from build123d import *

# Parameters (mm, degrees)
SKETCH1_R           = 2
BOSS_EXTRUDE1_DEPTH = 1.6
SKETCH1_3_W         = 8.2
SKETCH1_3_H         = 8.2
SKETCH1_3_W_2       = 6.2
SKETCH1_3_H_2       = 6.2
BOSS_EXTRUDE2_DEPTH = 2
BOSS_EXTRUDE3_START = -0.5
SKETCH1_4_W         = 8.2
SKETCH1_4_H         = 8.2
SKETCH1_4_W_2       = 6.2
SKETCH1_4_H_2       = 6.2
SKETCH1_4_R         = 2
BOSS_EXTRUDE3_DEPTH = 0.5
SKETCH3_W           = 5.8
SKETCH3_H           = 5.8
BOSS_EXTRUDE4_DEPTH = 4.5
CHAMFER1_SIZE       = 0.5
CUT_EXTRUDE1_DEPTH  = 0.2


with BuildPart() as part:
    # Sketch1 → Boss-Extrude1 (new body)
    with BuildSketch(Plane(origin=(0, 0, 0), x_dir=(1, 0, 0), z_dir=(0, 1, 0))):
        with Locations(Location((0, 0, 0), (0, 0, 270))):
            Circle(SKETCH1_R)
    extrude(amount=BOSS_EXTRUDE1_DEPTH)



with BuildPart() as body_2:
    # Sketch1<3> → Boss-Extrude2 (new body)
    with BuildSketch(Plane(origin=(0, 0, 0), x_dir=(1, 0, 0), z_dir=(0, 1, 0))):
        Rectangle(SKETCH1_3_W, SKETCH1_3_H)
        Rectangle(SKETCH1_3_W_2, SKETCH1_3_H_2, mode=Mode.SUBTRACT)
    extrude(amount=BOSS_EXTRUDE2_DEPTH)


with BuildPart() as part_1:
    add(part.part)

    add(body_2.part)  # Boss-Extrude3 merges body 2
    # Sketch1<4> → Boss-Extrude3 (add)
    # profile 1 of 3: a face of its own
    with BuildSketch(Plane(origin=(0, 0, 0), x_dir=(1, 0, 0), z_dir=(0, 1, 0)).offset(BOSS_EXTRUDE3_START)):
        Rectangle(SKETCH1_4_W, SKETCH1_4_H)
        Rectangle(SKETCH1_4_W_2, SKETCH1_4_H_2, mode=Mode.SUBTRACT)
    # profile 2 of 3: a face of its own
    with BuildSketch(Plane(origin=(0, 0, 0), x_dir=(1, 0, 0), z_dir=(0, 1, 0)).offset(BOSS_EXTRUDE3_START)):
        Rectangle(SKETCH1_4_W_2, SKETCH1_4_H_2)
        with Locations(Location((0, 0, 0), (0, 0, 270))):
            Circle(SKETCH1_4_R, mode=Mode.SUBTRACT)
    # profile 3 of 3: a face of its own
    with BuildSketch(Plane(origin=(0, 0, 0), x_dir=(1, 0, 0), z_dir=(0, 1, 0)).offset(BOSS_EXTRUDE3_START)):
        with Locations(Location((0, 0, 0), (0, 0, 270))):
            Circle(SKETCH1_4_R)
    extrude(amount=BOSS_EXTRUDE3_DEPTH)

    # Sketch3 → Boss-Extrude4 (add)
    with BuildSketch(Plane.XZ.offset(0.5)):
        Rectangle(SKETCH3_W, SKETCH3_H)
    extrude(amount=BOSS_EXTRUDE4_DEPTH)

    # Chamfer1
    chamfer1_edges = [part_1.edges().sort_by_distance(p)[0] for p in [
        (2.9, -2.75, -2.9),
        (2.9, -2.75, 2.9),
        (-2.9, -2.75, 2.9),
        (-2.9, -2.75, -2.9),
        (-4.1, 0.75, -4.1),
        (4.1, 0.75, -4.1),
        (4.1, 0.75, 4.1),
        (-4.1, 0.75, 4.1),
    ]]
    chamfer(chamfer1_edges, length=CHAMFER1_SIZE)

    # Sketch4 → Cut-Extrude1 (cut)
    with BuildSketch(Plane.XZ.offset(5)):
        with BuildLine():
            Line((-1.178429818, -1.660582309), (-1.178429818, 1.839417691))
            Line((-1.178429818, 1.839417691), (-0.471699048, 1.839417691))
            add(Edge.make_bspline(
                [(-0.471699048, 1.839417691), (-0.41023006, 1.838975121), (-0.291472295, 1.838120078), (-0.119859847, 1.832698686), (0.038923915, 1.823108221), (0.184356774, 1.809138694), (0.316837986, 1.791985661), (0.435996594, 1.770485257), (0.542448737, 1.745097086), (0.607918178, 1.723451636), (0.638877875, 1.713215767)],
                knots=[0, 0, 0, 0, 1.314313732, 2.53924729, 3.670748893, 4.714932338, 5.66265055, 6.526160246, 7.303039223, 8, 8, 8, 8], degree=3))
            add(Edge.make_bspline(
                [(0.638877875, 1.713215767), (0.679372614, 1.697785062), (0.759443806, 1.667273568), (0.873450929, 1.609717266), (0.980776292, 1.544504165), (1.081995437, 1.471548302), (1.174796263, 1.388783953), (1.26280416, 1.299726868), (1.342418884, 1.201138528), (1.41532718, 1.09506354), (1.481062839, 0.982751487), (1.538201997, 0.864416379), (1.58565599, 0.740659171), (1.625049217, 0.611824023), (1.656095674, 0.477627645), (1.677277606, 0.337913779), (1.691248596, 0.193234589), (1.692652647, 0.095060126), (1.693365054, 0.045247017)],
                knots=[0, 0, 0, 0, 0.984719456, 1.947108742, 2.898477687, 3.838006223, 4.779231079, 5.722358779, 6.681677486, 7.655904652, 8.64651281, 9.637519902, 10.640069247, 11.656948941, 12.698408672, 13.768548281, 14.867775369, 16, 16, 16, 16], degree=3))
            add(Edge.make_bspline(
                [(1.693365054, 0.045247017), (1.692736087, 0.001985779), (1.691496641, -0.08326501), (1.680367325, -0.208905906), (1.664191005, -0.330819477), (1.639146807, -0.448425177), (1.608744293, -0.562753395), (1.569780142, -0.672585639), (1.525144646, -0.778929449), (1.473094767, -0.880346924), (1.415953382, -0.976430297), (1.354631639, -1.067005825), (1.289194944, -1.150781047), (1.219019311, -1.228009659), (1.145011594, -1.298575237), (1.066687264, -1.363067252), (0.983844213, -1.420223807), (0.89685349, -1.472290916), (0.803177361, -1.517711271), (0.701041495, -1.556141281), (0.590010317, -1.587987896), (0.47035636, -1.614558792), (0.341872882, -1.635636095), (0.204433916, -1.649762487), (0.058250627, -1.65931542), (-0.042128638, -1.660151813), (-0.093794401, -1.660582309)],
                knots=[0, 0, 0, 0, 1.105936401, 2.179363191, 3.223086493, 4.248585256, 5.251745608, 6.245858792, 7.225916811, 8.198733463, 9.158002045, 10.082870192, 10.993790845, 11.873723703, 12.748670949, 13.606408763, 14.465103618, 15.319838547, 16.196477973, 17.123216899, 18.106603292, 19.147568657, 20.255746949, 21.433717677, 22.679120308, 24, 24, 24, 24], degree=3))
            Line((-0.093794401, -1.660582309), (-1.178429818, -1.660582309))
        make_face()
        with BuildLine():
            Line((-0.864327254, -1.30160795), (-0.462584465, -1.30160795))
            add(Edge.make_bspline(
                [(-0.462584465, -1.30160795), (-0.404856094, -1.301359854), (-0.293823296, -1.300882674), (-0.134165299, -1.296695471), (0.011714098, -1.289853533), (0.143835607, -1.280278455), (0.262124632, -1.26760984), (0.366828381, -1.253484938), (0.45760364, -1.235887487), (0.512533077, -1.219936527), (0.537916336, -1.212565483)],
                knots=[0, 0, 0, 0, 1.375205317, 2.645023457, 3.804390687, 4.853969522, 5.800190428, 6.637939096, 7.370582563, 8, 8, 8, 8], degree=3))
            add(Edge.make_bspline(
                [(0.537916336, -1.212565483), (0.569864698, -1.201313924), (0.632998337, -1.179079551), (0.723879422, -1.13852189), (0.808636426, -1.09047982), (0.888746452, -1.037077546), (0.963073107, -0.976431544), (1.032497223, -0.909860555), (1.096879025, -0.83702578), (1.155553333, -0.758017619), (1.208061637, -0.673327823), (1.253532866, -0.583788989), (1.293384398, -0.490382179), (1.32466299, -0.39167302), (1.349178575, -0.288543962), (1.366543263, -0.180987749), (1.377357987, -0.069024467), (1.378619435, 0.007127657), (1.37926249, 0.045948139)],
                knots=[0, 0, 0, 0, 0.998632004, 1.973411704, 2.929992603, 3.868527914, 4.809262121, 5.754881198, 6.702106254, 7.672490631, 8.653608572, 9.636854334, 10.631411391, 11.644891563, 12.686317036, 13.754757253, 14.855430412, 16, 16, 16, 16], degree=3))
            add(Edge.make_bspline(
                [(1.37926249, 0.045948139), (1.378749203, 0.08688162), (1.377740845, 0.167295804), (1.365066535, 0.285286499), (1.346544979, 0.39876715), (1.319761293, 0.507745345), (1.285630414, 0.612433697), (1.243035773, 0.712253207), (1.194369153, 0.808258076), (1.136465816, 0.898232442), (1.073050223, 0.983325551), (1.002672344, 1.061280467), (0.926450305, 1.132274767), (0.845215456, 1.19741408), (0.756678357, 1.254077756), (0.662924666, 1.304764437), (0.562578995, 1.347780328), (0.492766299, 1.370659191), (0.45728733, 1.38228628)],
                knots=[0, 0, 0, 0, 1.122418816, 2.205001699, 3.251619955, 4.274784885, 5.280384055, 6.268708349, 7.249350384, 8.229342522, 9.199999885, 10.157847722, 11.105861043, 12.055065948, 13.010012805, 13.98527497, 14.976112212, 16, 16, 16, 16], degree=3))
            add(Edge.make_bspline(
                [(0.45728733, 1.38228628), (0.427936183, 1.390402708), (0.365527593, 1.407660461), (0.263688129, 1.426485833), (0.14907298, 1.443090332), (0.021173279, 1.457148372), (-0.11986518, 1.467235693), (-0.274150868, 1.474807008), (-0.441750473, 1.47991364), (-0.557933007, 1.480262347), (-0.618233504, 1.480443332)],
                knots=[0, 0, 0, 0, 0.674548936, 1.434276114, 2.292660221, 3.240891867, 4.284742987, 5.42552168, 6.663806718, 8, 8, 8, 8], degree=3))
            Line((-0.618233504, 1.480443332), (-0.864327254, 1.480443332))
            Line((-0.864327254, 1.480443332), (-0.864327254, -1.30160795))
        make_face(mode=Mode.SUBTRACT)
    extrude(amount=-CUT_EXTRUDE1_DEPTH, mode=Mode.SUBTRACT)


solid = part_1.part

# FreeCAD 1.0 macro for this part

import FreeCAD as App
import Part
import Sketcher
Q = App.Units.Quantity


def edges_at(feature, points):
    """Names of the edges that pass closest to the given points."""
    edges = feature.Shape.Edges
    near = lambda p: min(range(len(edges)), key=lambda i: edges[i].distToShape(Part.Vertex(*p))[0])
    return sorted({f"Edge{near(p) + 1}" for p in points})


def add_polygon(sketch, points):
    """Adds a closed chain of lines whose ends are joined by coincident constraints."""
    first, n = sketch.GeometryCount, len(points)
    for a, b in zip(points, points[1:] + points[:1]):
        sketch.addGeometry(Part.LineSegment(App.Vector(*a, 0), App.Vector(*b, 0)), False)
    for i in range(n):
        sketch.addConstraint(Sketcher.Constraint("Coincident", first + i, 2, first + (i + 1) % n, 1))

doc = App.newDocument("Part")
params = doc.addObject("Spreadsheet::Sheet", "Params")
for row, (alias, value) in enumerate([
    ("sketch1_diameter", "4 mm"),
    ("pad1_length", "1.6 mm"),
    ("sketch2_width", "8.2 mm"),
    ("sketch2_width2", "6.2 mm"),
    ("pad2_length", "2 mm"),
    ("sketch3_width", "8.2 mm"),
    ("pad3_length", "0.5 mm"),
    ("sketch4_width", "5.8 mm"),
    ("pad4_length", "4.5 mm"),
    ("chamfer_size", "0.5 mm"),
    ("pocket1_length", "0.2 mm"),
], start=1):
    params.set(f"A{row}", alias)
    params.set(f"B{row}", "=" + value)
    params.setAlias(f"B{row}", alias)

body = doc.addObject("PartDesign::Body", "Body")

# Sketch on XZ plane
sketch1 = body.newObject("Sketcher::SketchObject", "Sketch")
sketch1.AttachmentSupport = (doc.getObject("XZ_Plane"), [""])
sketch1.MapMode = "FlatFace"
sketch1.addGeometry(Part.Circle(App.Vector(0, 0, 0), App.Vector(0, 0, 1), 2), False)
sketch1.addConstraint(Sketcher.Constraint("Coincident", 0, 3, -1, 1))
sketch1.addConstraint(Sketcher.Constraint("Diameter", 0, Q("4 mm")))
sketch1.setExpression("Constraints[1]", "Params.sketch1_diameter")
pad1 = body.newObject("PartDesign::Pad", "Pad")
pad1.Profile = sketch1
pad1.setExpression("Length", "Params.pad1_length")
pad1.Reversed = True
body2 = doc.addObject("PartDesign::Body", "Body001")

# Sketch on XZ plane
sketch2 = body2.newObject("Sketcher::SketchObject", "Sketch001")
sketch2.AttachmentSupport = (doc.getObject("XZ_Plane001"), [""])
sketch2.MapMode = "FlatFace"
add_polygon(sketch2, [(-4, -4), (-4, 4), (4, 4), (4, -4)])  # lines 0-3
add_polygon(sketch2, [(3, 3), (-3, 3), (-3, -3), (3, -3)])  # lines 4-7
sketch2.addConstraint(Sketcher.Constraint("Vertical", 0))
sketch2.addConstraint(Sketcher.Constraint("Horizontal", 1))
sketch2.addConstraint(Sketcher.Constraint("Vertical", 2))
sketch2.addConstraint(Sketcher.Constraint("Horizontal", 3))
sketch2.addConstraint(Sketcher.Constraint("Horizontal", 4))
sketch2.addConstraint(Sketcher.Constraint("Vertical", 5))
sketch2.addConstraint(Sketcher.Constraint("Horizontal", 6))
sketch2.addConstraint(Sketcher.Constraint("Vertical", 7))
sketch2.addConstraint(Sketcher.Constraint("Symmetric", 0, 2, 2, 2, -1, 1))
sketch2.addConstraint(Sketcher.Constraint("Symmetric", 4, 2, 6, 2, -1, 1))
sketch2.addConstraint(Sketcher.Constraint("Equal", 3, 0))
sketch2.addConstraint(Sketcher.Constraint("Equal", 6, 5))
sketch2.addConstraint(Sketcher.Constraint("DistanceX", 1, 1, 1, 2, Q("8.2 mm")))
sketch2.addConstraint(Sketcher.Constraint("DistanceX", 4, 2, 4, 1, Q("6.2 mm")))
sketch2.setExpression("Constraints[20]", "Params.sketch2_width")
sketch2.setExpression("Constraints[21]", "Params.sketch2_width2")
pad2 = body2.newObject("PartDesign::Pad", "Pad001")
pad2.Profile = sketch2
pad2.setExpression("Length", "Params.pad2_length")
pad2.Reversed = True
body.AllowCompound = True
doc.recompute()

boolean = body.newObject("PartDesign::Boolean", "Boolean")
boolean.Type = "Fuse"
boolean.addObjects([body2])

# Sketch on XZ plane
sketch3 = body.newObject("Sketcher::SketchObject", "Sketch002")
sketch3.AttachmentSupport = (doc.getObject("XZ_Plane"), [""])
sketch3.MapMode = "FlatFace"
sketch3.AttachmentOffset = App.Placement(App.Vector(0, 0, 0.5), App.Rotation())
add_polygon(sketch3, [(-4, -4), (-4, 4), (4, 4), (4, -4)])  # lines 0-3
sketch3.addConstraint(Sketcher.Constraint("Vertical", 0))
sketch3.addConstraint(Sketcher.Constraint("Horizontal", 1))
sketch3.addConstraint(Sketcher.Constraint("Vertical", 2))
sketch3.addConstraint(Sketcher.Constraint("Horizontal", 3))
sketch3.addConstraint(Sketcher.Constraint("Symmetric", 0, 2, 2, 2, -1, 1))
sketch3.addConstraint(Sketcher.Constraint("Equal", 3, 0))
sketch3.addConstraint(Sketcher.Constraint("DistanceX", 1, 1, 1, 2, Q("8.2 mm")))
sketch3.setExpression("Constraints[10]", "Params.sketch3_width")
pad3 = body.newObject("PartDesign::Pad", "Pad002")
pad3.Profile = sketch3
pad3.setExpression("Length", "Params.pad3_length")
pad3.Reversed = True

# Sketch on XZ plane
sketch4 = body.newObject("Sketcher::SketchObject", "Sketch003")
sketch4.AttachmentSupport = (doc.getObject("XZ_Plane"), [""])
sketch4.MapMode = "FlatFace"
sketch4.AttachmentOffset = App.Placement(App.Vector(0, 0, 0.5), App.Rotation())
add_polygon(sketch4, [(-3, 3), (-3, -3), (3, -3), (3, 3)])  # lines 0-3
sketch4.addConstraint(Sketcher.Constraint("Vertical", 0))
sketch4.addConstraint(Sketcher.Constraint("Horizontal", 1))
sketch4.addConstraint(Sketcher.Constraint("Vertical", 2))
sketch4.addConstraint(Sketcher.Constraint("Horizontal", 3))
sketch4.addConstraint(Sketcher.Constraint("Symmetric", 0, 2, 2, 2, -1, 1))
sketch4.addConstraint(Sketcher.Constraint("Equal", 3, 0))
sketch4.addConstraint(Sketcher.Constraint("DistanceX", 1, 1, 1, 2, Q("5.8 mm")))
sketch4.setExpression("Constraints[10]", "Params.sketch4_width")
pad4 = body.newObject("PartDesign::Pad", "Pad003")
pad4.Profile = sketch4
pad4.setExpression("Length", "Params.pad4_length")
doc.recompute()

chamfer = body.newObject("PartDesign::Chamfer", "Chamfer")
chamfer.Base = (pad4, edges_at(pad4, [
    (2.9, -2.75, -2.9),
    (2.9, -2.75, 2.9),
    (-2.9, -2.75, 2.9),
    (-2.9, -2.75, -2.9),
    (-4.1, 0.75, -4.1),
    (4.1, 0.75, -4.1),
    (4.1, 0.75, 4.1),
    (-4.1, 0.75, 4.1),
]))
chamfer.setExpression("Size", "Params.chamfer_size")

# Sketch on XZ plane
sketch5 = body.newObject("Sketcher::SketchObject", "Sketch004")
sketch5.AttachmentSupport = (doc.getObject("XZ_Plane"), [""])
sketch5.MapMode = "FlatFace"
sketch5.AttachmentOffset = App.Placement(App.Vector(0, 0, 5), App.Rotation())
sketch5.addGeometry(Part.LineSegment(App.Vector(-1.17843, 1.839418, 0), App.Vector(-1.17843, -1.660582, 0)), False)
sketch5.addGeometry(Part.LineSegment(App.Vector(-1.17843, -1.660582, 0), App.Vector(-0.093794, -1.660582, 0)), False)
sketch5.addGeometry(Part.BSplineCurve([App.Vector(1.693365, 0.045247, 0), App.Vector(1.692736, 0.001986, 0), App.Vector(1.691497, -0.083265, 0), App.Vector(1.680367, -0.208906, 0), App.Vector(1.664191, -0.330819, 0), App.Vector(1.639147, -0.448425, 0), App.Vector(1.608744, -0.562753, 0), App.Vector(1.56978, -0.672586, 0), App.Vector(1.525145, -0.778929, 0), App.Vector(1.473095, -0.880347, 0), App.Vector(1.415953, -0.97643, 0), App.Vector(1.354632, -1.067006, 0), App.Vector(1.289195, -1.150781, 0), App.Vector(1.219019, -1.22801, 0), App.Vector(1.145012, -1.298575, 0), App.Vector(1.066687, -1.363067, 0), App.Vector(0.983844, -1.420224, 0), App.Vector(0.896853, -1.472291, 0), App.Vector(0.803177, -1.517711, 0), App.Vector(0.701041, -1.556141, 0), App.Vector(0.59001, -1.587988, 0), App.Vector(0.470356, -1.614559, 0), App.Vector(0.341873, -1.635636, 0), App.Vector(0.204434, -1.649762, 0), App.Vector(0.058251, -1.659315, 0), App.Vector(-0.042129, -1.660152, 0), App.Vector(-0.093794, -1.660582, 0)], [4, 1, 1, 1, 1, 1, 1, 1, 1, 1, 1, 1, 1, 1, 1, 1, 1, 1, 1, 1, 1, 1, 1, 1, 4], [0, 1.105936401, 2.179363191, 3.223086493, 4.248585256, 5.251745608, 6.245858792, 7.225916811, 8.198733463, 9.158002045, 10.082870192, 10.993790845, 11.873723703, 12.748670949, 13.606408763, 14.465103618, 15.319838547, 16.196477973, 17.123216899, 18.106603292, 19.147568657, 20.255746949, 21.433717677, 22.679120308, 24], False, 3, [1, 1, 1, 1, 1, 1, 1, 1, 1, 1, 1, 1, 1, 1, 1, 1, 1, 1, 1, 1, 1, 1, 1, 1, 1, 1, 1], False), False)
sketch5.addGeometry(Part.BSplineCurve([App.Vector(0.638878, 1.713216, 0), App.Vector(0.679373, 1.697785, 0), App.Vector(0.759444, 1.667274, 0), App.Vector(0.873451, 1.609717, 0), App.Vector(0.980776, 1.544504, 0), App.Vector(1.081995, 1.471548, 0), App.Vector(1.174796, 1.388784, 0), App.Vector(1.262804, 1.299727, 0), App.Vector(1.342419, 1.201139, 0), App.Vector(1.415327, 1.095064, 0), App.Vector(1.481063, 0.982751, 0), App.Vector(1.538202, 0.864416, 0), App.Vector(1.585656, 0.740659, 0), App.Vector(1.625049, 0.611824, 0), App.Vector(1.656096, 0.477628, 0), App.Vector(1.677278, 0.337914, 0), App.Vector(1.691249, 0.193235, 0), App.Vector(1.692653, 0.09506, 0), App.Vector(1.693365, 0.045247, 0)], [4, 1, 1, 1, 1, 1, 1, 1, 1, 1, 1, 1, 1, 1, 1, 1, 4], [0, 0.984719456, 1.947108742, 2.898477687, 3.838006223, 4.779231079, 5.722358779, 6.681677486, 7.655904652, 8.64651281, 9.637519902, 10.640069247, 11.656948941, 12.698408672, 13.768548281, 14.867775369, 16], False, 3, [1, 1, 1, 1, 1, 1, 1, 1, 1, 1, 1, 1, 1, 1, 1, 1, 1, 1, 1], False), False)
sketch5.addGeometry(Part.BSplineCurve([App.Vector(-0.471699, 1.839418, 0), App.Vector(-0.41023, 1.838975, 0), App.Vector(-0.291472, 1.83812, 0), App.Vector(-0.11986, 1.832699, 0), App.Vector(0.038924, 1.823108, 0), App.Vector(0.184357, 1.809139, 0), App.Vector(0.316838, 1.791986, 0), App.Vector(0.435997, 1.770485, 0), App.Vector(0.542449, 1.745097, 0), App.Vector(0.607918, 1.723452, 0), App.Vector(0.638878, 1.713216, 0)], [4, 1, 1, 1, 1, 1, 1, 1, 4], [0, 1.314313732, 2.53924729, 3.670748893, 4.714932338, 5.66265055, 6.526160246, 7.303039223, 8], False, 3, [1, 1, 1, 1, 1, 1, 1, 1, 1, 1, 1], False), False)
sketch5.addGeometry(Part.LineSegment(App.Vector(-0.471699, 1.839418, 0), App.Vector(-1.17843, 1.839418, 0)), False)
sketch5.addGeometry(Part.LineSegment(App.Vector(-0.864327, -1.301608, 0), App.Vector(-0.864327, 1.480443, 0)), False)
sketch5.addGeometry(Part.LineSegment(App.Vector(-0.864327, 1.480443, 0), App.Vector(-0.618234, 1.480443, 0)), False)
sketch5.addGeometry(Part.BSplineCurve([App.Vector(0.457287, 1.382286, 0), App.Vector(0.427936, 1.390403, 0), App.Vector(0.365528, 1.40766, 0), App.Vector(0.263688, 1.426486, 0), App.Vector(0.149073, 1.44309, 0), App.Vector(0.021173, 1.457148, 0), App.Vector(-0.119865, 1.467236, 0), App.Vector(-0.274151, 1.474807, 0), App.Vector(-0.44175, 1.479914, 0), App.Vector(-0.557933, 1.480262, 0), App.Vector(-0.618234, 1.480443, 0)], [4, 1, 1, 1, 1, 1, 1, 1, 4], [0, 0.674548936, 1.434276114, 2.292660221, 3.240891867, 4.284742987, 5.42552168, 6.663806718, 8], False, 3, [1, 1, 1, 1, 1, 1, 1, 1, 1, 1, 1], False), False)
sketch5.addGeometry(Part.BSplineCurve([App.Vector(1.379262, 0.045948, 0), App.Vector(1.378749, 0.086882, 0), App.Vector(1.377741, 0.167296, 0), App.Vector(1.365067, 0.285286, 0), App.Vector(1.346545, 0.398767, 0), App.Vector(1.319761, 0.507745, 0), App.Vector(1.28563, 0.612434, 0), App.Vector(1.243036, 0.712253, 0), App.Vector(1.194369, 0.808258, 0), App.Vector(1.136466, 0.898232, 0), App.Vector(1.07305, 0.983326, 0), App.Vector(1.002672, 1.06128, 0), App.Vector(0.92645, 1.132275, 0), App.Vector(0.845215, 1.197414, 0), App.Vector(0.756678, 1.254078, 0), App.Vector(0.662925, 1.304764, 0), App.Vector(0.562579, 1.34778, 0), App.Vector(0.492766, 1.370659, 0), App.Vector(0.457287, 1.382286, 0)], [4, 1, 1, 1, 1, 1, 1, 1, 1, 1, 1, 1, 1, 1, 1, 1, 4], [0, 1.122418816, 2.205001699, 3.251619955, 4.274784885, 5.280384055, 6.268708349, 7.249350384, 8.229342522, 9.199999885, 10.157847722, 11.105861043, 12.055065948, 13.010012805, 13.98527497, 14.976112212, 16], False, 3, [1, 1, 1, 1, 1, 1, 1, 1, 1, 1, 1, 1, 1, 1, 1, 1, 1, 1, 1], False), False)
sketch5.addGeometry(Part.BSplineCurve([App.Vector(0.537916, -1.212565, 0), App.Vector(0.569865, -1.201314, 0), App.Vector(0.632998, -1.17908, 0), App.Vector(0.723879, -1.138522, 0), App.Vector(0.808636, -1.09048, 0), App.Vector(0.888746, -1.037078, 0), App.Vector(0.963073, -0.976432, 0), App.Vector(1.032497, -0.909861, 0), App.Vector(1.096879, -0.837026, 0), App.Vector(1.155553, -0.758018, 0), App.Vector(1.208062, -0.673328, 0), App.Vector(1.253533, -0.583789, 0), App.Vector(1.293384, -0.490382, 0), App.Vector(1.324663, -0.391673, 0), App.Vector(1.349179, -0.288544, 0), App.Vector(1.366543, -0.180988, 0), App.Vector(1.377358, -0.069024, 0), App.Vector(1.378619, 0.007128, 0), App.Vector(1.379262, 0.045948, 0)], [4, 1, 1, 1, 1, 1, 1, 1, 1, 1, 1, 1, 1, 1, 1, 1, 4], [0, 0.998632004, 1.973411704, 2.929992603, 3.868527914, 4.809262121, 5.754881198, 6.702106254, 7.672490631, 8.653608572, 9.636854334, 10.631411391, 11.644891563, 12.686317036, 13.754757253, 14.855430412, 16], False, 3, [1, 1, 1, 1, 1, 1, 1, 1, 1, 1, 1, 1, 1, 1, 1, 1, 1, 1, 1], False), False)
sketch5.addGeometry(Part.BSplineCurve([App.Vector(-0.462584, -1.301608, 0), App.Vector(-0.404856, -1.30136, 0), App.Vector(-0.293823, -1.300883, 0), App.Vector(-0.134165, -1.296695, 0), App.Vector(0.011714, -1.289854, 0), App.Vector(0.143836, -1.280278, 0), App.Vector(0.262125, -1.26761, 0), App.Vector(0.366828, -1.253485, 0), App.Vector(0.457604, -1.235887, 0), App.Vector(0.512533, -1.219937, 0), App.Vector(0.537916, -1.212565, 0)], [4, 1, 1, 1, 1, 1, 1, 1, 4], [0, 1.375205317, 2.645023457, 3.804390687, 4.853969522, 5.800190428, 6.637939096, 7.370582563, 8], False, 3, [1, 1, 1, 1, 1, 1, 1, 1, 1, 1, 1], False), False)
sketch5.addGeometry(Part.LineSegment(App.Vector(-0.462584, -1.301608, 0), App.Vector(-0.864327, -1.301608, 0)), False)
sketch5.addConstraint(Sketcher.Constraint("Block", 2))
sketch5.addConstraint(Sketcher.Constraint("Block", 3))
sketch5.addConstraint(Sketcher.Constraint("Block", 4))
sketch5.addConstraint(Sketcher.Constraint("Block", 8))
sketch5.addConstraint(Sketcher.Constraint("Block", 9))
sketch5.addConstraint(Sketcher.Constraint("Block", 10))
sketch5.addConstraint(Sketcher.Constraint("Block", 11))
sketch5.addConstraint(Sketcher.Constraint("Coincident", 0, 2, 1, 1))
sketch5.addConstraint(Sketcher.Constraint("Coincident", 1, 2, 2, 2))
sketch5.addConstraint(Sketcher.Constraint("Coincident", 4, 1, 5, 1))
sketch5.addConstraint(Sketcher.Constraint("Coincident", 5, 2, 0, 1))
sketch5.addConstraint(Sketcher.Constraint("Coincident", 6, 2, 7, 1))
sketch5.addConstraint(Sketcher.Constraint("Coincident", 7, 2, 8, 2))
sketch5.addConstraint(Sketcher.Constraint("Coincident", 11, 1, 12, 1))
sketch5.addConstraint(Sketcher.Constraint("Coincident", 12, 2, 6, 1))
sketch5.addConstraint(Sketcher.Constraint("Vertical", 0))
sketch5.addConstraint(Sketcher.Constraint("Horizontal", 1))
sketch5.addConstraint(Sketcher.Constraint("Horizontal", 5))
sketch5.addConstraint(Sketcher.Constraint("Vertical", 6))
sketch5.addConstraint(Sketcher.Constraint("Horizontal", 7))
sketch5.addConstraint(Sketcher.Constraint("Horizontal", 12))
sketch5.addConstraint(Sketcher.Constraint("DistanceX", 5, 2, 5, 1, Q("0.706731 mm")))
sketch5.addConstraint(Sketcher.Constraint("DistanceX", 7, 1, 7, 2, Q("0.246094 mm")))
pocket1 = body.newObject("PartDesign::Pocket", "Pocket")
pocket1.Profile = sketch5
pocket1.setExpression("Length", "Params.pocket1_length")

doc.recompute()
